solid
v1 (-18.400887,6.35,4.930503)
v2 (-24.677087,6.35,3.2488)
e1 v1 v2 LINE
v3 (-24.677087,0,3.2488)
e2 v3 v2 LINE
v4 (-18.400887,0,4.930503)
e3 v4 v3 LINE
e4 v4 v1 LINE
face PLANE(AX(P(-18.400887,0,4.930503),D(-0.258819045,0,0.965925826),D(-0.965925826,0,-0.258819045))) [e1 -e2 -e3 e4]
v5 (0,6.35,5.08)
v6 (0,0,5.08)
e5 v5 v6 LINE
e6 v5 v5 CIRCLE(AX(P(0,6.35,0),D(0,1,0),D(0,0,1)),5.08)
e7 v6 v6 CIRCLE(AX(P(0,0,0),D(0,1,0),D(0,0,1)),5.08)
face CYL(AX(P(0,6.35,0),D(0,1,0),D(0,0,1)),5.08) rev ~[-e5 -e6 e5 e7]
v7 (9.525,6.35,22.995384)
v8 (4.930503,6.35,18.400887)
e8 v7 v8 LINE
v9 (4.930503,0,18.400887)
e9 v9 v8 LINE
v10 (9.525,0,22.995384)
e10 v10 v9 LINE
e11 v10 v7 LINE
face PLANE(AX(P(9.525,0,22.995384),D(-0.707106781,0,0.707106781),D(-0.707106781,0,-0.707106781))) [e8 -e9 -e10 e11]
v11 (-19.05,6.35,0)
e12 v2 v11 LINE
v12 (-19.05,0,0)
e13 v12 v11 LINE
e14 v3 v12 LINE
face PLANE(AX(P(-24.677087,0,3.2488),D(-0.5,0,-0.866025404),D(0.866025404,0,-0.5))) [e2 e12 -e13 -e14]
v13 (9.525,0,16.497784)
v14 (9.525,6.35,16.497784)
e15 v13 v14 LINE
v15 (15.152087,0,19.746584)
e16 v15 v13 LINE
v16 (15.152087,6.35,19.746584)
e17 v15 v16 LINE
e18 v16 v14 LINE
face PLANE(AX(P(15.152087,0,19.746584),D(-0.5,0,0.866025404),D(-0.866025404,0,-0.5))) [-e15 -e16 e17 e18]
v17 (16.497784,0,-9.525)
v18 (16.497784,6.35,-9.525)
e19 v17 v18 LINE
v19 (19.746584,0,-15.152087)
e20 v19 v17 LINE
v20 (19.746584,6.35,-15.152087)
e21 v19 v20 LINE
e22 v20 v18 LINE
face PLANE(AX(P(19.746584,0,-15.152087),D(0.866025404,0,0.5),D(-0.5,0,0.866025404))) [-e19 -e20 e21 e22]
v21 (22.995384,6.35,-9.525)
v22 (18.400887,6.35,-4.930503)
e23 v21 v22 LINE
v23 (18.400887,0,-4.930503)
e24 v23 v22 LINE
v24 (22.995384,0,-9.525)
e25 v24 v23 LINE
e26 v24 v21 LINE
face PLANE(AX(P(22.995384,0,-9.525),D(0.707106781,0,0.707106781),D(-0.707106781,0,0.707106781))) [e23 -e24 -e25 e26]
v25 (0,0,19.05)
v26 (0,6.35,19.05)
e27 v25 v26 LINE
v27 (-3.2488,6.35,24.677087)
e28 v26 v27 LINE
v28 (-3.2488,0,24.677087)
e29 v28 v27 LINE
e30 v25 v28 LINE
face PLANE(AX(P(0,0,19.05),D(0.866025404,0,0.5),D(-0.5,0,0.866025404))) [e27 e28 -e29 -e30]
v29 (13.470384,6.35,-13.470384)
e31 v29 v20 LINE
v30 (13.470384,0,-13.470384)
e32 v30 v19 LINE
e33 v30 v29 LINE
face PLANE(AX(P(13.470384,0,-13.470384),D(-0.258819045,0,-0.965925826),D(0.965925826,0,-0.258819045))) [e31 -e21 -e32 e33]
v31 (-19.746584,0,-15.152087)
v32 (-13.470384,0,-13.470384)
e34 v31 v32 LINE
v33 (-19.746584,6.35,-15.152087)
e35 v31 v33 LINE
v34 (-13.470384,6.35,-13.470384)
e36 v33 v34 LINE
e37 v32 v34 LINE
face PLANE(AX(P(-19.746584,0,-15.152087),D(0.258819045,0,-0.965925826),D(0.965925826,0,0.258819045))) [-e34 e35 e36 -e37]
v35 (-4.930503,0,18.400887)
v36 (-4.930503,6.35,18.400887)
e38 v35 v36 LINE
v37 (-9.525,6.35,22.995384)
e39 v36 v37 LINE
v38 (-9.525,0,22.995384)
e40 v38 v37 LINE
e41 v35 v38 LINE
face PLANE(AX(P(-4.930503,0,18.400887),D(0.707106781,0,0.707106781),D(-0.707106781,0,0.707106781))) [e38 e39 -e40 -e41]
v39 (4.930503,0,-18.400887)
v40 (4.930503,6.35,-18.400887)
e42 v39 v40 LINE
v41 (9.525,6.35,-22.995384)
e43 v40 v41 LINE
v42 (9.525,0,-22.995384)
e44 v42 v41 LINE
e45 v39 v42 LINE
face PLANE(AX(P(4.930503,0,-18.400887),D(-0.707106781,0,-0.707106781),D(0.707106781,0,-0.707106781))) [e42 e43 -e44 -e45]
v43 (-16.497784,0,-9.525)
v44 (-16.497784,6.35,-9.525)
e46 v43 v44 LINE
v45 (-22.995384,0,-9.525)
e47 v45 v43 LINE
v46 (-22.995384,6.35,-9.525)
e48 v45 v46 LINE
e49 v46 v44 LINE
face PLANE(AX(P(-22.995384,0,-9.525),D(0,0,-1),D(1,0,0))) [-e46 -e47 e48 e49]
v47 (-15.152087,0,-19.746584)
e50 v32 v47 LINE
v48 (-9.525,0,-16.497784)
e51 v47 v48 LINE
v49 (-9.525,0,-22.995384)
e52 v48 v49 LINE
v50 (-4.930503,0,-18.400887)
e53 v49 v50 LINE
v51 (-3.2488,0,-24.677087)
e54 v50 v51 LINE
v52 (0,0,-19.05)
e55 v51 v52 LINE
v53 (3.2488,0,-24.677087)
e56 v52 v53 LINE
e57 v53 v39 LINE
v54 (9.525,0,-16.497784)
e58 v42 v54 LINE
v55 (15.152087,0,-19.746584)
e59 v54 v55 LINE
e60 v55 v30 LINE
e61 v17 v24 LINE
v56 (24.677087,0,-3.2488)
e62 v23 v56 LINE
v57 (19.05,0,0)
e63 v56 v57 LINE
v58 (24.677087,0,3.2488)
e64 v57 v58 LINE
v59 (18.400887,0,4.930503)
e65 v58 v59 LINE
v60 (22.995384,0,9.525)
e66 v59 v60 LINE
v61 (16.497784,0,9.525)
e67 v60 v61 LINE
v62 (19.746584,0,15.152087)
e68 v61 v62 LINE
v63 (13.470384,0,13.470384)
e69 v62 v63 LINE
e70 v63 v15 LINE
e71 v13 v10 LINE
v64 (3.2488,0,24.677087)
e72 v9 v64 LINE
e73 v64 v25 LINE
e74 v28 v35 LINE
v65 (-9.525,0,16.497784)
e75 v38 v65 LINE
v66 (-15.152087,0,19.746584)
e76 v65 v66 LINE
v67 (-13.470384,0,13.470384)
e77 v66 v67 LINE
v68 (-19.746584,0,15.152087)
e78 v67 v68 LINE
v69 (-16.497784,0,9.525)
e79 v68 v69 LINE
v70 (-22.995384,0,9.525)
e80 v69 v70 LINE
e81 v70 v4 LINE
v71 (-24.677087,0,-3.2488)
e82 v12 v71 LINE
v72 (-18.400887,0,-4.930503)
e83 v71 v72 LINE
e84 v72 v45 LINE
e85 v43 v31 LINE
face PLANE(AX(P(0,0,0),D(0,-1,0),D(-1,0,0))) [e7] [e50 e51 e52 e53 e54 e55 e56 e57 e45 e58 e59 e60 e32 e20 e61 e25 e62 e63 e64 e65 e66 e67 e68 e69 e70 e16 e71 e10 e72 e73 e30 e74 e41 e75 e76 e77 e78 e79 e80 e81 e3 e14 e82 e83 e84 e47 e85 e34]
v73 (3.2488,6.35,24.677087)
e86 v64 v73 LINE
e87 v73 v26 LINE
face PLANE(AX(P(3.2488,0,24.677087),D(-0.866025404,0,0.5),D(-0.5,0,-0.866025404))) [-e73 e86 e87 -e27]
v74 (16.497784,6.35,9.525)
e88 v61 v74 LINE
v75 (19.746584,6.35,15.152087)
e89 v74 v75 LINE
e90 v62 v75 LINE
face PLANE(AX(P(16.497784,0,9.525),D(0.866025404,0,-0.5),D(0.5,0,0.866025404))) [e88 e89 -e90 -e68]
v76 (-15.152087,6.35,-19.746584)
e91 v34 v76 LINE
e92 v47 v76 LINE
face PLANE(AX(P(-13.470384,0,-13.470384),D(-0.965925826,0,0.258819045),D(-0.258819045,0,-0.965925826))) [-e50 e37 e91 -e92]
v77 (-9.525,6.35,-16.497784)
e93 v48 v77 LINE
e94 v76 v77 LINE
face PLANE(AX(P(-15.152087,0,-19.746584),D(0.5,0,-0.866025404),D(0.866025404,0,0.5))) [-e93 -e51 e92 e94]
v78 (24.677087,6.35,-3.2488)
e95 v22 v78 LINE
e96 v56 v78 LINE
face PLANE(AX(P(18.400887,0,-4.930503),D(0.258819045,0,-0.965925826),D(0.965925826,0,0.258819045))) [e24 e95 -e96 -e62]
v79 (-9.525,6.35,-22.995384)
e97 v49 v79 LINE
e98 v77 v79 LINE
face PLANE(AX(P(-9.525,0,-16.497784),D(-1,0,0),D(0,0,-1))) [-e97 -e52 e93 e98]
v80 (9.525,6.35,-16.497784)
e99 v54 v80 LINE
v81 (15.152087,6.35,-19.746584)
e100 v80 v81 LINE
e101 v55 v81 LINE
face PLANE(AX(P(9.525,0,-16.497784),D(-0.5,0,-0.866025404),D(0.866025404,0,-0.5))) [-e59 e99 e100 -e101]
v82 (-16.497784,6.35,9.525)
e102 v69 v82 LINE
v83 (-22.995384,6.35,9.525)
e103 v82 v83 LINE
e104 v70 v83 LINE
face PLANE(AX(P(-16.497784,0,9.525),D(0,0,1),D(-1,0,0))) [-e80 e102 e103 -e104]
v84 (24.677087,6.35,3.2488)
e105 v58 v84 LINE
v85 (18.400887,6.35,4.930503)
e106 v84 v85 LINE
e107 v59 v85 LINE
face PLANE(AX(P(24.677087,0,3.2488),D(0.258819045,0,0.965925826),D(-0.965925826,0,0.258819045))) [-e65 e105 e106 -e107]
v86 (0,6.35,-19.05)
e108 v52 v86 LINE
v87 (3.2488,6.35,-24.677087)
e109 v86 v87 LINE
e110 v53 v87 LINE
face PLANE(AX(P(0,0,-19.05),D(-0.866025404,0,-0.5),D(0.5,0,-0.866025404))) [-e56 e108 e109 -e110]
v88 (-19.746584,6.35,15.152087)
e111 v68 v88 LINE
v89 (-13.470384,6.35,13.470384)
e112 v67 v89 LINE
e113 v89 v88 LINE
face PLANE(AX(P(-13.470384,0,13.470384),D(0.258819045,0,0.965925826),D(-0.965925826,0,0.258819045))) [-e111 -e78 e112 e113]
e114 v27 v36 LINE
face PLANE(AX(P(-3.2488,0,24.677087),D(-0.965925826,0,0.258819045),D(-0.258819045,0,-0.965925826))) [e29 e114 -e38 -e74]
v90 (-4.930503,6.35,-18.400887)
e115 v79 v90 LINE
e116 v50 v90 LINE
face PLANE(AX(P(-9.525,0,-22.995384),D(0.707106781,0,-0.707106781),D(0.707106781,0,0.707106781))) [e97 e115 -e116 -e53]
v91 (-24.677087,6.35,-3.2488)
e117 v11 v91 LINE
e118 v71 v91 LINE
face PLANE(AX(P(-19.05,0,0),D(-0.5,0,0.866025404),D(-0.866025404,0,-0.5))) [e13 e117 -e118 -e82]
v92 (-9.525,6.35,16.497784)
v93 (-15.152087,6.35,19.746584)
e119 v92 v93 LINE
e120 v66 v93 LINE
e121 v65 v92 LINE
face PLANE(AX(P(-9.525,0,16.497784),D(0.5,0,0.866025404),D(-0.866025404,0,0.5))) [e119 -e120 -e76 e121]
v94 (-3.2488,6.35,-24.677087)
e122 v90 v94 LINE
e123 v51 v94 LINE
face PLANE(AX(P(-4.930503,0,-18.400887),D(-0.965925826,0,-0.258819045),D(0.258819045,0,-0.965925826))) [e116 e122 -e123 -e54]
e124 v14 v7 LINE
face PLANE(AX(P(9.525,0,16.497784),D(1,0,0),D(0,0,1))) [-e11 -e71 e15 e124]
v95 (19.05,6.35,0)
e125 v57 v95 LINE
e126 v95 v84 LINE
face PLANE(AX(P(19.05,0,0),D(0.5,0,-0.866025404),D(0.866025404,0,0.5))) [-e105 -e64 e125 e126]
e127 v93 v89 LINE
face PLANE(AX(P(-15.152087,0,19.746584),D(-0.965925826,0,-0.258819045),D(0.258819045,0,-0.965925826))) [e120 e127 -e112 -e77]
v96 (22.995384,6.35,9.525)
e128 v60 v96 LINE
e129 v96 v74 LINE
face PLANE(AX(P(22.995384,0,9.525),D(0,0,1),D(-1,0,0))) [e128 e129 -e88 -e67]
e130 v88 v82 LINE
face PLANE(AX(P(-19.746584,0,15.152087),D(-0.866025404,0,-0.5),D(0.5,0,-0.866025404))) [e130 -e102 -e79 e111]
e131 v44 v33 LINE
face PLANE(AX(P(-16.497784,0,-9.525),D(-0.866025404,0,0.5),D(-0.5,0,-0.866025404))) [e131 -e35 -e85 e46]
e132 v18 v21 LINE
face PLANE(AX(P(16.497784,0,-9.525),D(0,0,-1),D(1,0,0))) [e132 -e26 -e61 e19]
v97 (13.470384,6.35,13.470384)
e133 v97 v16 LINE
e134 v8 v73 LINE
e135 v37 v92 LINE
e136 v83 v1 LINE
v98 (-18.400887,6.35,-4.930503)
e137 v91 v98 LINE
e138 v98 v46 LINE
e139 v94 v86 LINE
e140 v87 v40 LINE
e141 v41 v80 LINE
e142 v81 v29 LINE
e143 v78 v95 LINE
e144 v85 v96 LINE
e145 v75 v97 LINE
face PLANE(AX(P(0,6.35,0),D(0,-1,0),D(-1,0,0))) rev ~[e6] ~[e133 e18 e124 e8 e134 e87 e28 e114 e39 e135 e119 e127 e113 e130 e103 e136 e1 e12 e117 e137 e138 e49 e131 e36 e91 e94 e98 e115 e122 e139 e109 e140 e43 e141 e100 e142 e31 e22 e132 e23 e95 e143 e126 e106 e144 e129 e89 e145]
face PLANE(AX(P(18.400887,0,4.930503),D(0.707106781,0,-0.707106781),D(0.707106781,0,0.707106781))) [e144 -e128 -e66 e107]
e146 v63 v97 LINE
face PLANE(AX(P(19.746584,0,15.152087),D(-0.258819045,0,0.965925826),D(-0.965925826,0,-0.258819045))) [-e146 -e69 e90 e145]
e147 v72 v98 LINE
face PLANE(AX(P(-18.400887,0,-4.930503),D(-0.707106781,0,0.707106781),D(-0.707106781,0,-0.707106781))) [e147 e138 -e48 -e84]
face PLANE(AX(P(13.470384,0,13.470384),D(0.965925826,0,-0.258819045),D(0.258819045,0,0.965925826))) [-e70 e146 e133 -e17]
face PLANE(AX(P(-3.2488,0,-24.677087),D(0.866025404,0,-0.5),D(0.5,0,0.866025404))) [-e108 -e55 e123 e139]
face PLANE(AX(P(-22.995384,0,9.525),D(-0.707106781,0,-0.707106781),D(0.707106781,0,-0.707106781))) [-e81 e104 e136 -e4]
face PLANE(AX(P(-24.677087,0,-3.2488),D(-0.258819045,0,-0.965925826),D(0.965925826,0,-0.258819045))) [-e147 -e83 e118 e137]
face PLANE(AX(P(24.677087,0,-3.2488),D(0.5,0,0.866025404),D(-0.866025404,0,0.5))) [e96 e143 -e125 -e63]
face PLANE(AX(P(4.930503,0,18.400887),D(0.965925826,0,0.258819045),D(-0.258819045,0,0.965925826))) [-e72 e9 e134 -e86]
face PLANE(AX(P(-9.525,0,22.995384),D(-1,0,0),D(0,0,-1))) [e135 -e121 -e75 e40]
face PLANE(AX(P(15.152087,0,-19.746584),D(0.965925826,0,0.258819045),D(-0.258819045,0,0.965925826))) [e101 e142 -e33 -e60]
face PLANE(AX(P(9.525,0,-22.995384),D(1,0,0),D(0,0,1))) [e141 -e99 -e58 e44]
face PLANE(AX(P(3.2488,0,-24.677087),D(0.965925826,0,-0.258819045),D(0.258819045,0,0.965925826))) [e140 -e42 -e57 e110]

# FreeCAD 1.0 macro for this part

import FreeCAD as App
import Part
import Sketcher
Q = App.Units.Quantity

doc = App.newDocument("Part")
body = doc.addObject("PartDesign::Body", "Body")

sketch1 = body.newObject("Sketcher::SketchObject", "Sketch")
sketch1.AttachmentSupport = (doc.getObject("XZ_Plane"), [""])
sketch1.MapMode = "FlatFace"
sketch1.addGeometry([
    Part.LineSegment(App.Vector(-9.525, -22.995384, 0), App.Vector(-9.525, -16.497784, 0)),
    Part.LineSegment(App.Vector(-9.525, -16.497784, 0), App.Vector(-15.152087, -19.746584, 0)),
    Part.LineSegment(App.Vector(-15.152087, -19.746584, 0), App.Vector(-13.470384, -13.470384, 0)),
    Part.LineSegment(App.Vector(-13.470384, -13.470384, 0), App.Vector(-19.746584, -15.152087, 0)),
    Part.LineSegment(App.Vector(-19.746584, -15.152087, 0), App.Vector(-16.497784, -9.525, 0)),
    Part.LineSegment(App.Vector(-16.497784, -9.525, 0), App.Vector(-22.995384, -9.525, 0)),
    Part.LineSegment(App.Vector(-22.995384, -9.525, 0), App.Vector(-18.400887, -4.930503, 0)),
    Part.LineSegment(App.Vector(-18.400887, -4.930503, 0), App.Vector(-24.677087, -3.2488, 0)),
    Part.LineSegment(App.Vector(-24.677087, -3.2488, 0), App.Vector(-19.05, 0, 0)),
    Part.LineSegment(App.Vector(-19.05, 0, 0), App.Vector(-24.677087, 3.2488, 0)),
    Part.LineSegment(App.Vector(-24.677087, 3.2488, 0), App.Vector(-18.400887, 4.930503, 0)),
    Part.LineSegment(App.Vector(-18.400887, 4.930503, 0), App.Vector(-22.995384, 9.525, 0)),
    Part.LineSegment(App.Vector(-22.995384, 9.525, 0), App.Vector(-16.497784, 9.525, 0)),
    Part.LineSegment(App.Vector(-16.497784, 9.525, 0), App.Vector(-19.746584, 15.152087, 0)),
    Part.LineSegment(App.Vector(-19.746584, 15.152087, 0), App.Vector(-13.470384, 13.470384, 0)),
    Part.LineSegment(App.Vector(-13.470384, 13.470384, 0), App.Vector(-15.152087, 19.746584, 0)),
    Part.LineSegment(App.Vector(-15.152087, 19.746584, 0), App.Vector(-9.525, 16.497784, 0)),
    Part.LineSegment(App.Vector(-9.525, 16.497784, 0), App.Vector(-9.525, 22.995384, 0)),
    Part.LineSegment(App.Vector(-9.525, 22.995384, 0), App.Vector(-4.930503, 18.400887, 0)),
    Part.LineSegment(App.Vector(-4.930503, 18.400887, 0), App.Vector(-3.2488, 24.677087, 0)),
    Part.LineSegment(App.Vector(-3.2488, 24.677087, 0), App.Vector(0, 19.05, 0)),
    Part.LineSegment(App.Vector(0, 19.05, 0), App.Vector(3.2488, 24.677087, 0)),
    Part.LineSegment(App.Vector(3.2488, 24.677087, 0), App.Vector(4.930503, 18.400887, 0)),
    Part.LineSegment(App.Vector(4.930503, 18.400887, 0), App.Vector(9.525, 22.995384, 0)),
    Part.LineSegment(App.Vector(9.525, 22.995384, 0), App.Vector(9.525, 16.497784, 0)),
    Part.LineSegment(App.Vector(9.525, 16.497784, 0), App.Vector(15.152087, 19.746584, 0)),
    Part.LineSegment(App.Vector(15.152087, 19.746584, 0), App.Vector(13.470384, 13.470384, 0)),
    Part.LineSegment(App.Vector(13.470384, 13.470384, 0), App.Vector(19.746584, 15.152087, 0)),
    Part.LineSegment(App.Vector(19.746584, 15.152087, 0), App.Vector(16.497784, 9.525, 0)),
    Part.LineSegment(App.Vector(16.497784, 9.525, 0), App.Vector(22.995384, 9.525, 0)),
    Part.LineSegment(App.Vector(22.995384, 9.525, 0), App.Vector(18.400887, 4.930503, 0)),
    Part.LineSegment(App.Vector(18.400887, 4.930503, 0), App.Vector(24.677087, 3.2488, 0)),
    Part.LineSegment(App.Vector(24.677087, 3.2488, 0), App.Vector(19.05, 0, 0)),
    Part.LineSegment(App.Vector(19.05, 0, 0), App.Vector(24.677087, -3.2488, 0)),
    Part.LineSegment(App.Vector(24.677087, -3.2488, 0), App.Vector(18.400887, -4.930503, 0)),
    Part.LineSegment(App.Vector(18.400887, -4.930503, 0), App.Vector(22.995384, -9.525, 0)),
    Part.LineSegment(App.Vector(22.995384, -9.525, 0), App.Vector(16.497784, -9.525, 0)),
    Part.LineSegment(App.Vector(16.497784, -9.525, 0), App.Vector(19.746584, -15.152087, 0)),
    Part.LineSegment(App.Vector(19.746584, -15.152087, 0), App.Vector(13.470384, -13.470384, 0)),
    Part.LineSegment(App.Vector(13.470384, -13.470384, 0), App.Vector(15.152087, -19.746584, 0)),
    Part.LineSegment(App.Vector(15.152087, -19.746584, 0), App.Vector(9.525, -16.497784, 0)),
    Part.LineSegment(App.Vector(9.525, -16.497784, 0), App.Vector(9.525, -22.995384, 0)),
    Part.LineSegment(App.Vector(9.525, -22.995384, 0), App.Vector(4.930503, -18.400887, 0)),
    Part.LineSegment(App.Vector(4.930503, -18.400887, 0), App.Vector(3.2488, -24.677087, 0)),
    Part.LineSegment(App.Vector(3.2488, -24.677087, 0), App.Vector(0, -19.05, 0)),
    Part.LineSegment(App.Vector(0, -19.05, 0), App.Vector(-3.2488, -24.677087, 0)),
    Part.LineSegment(App.Vector(-3.2488, -24.677087, 0), App.Vector(-4.930503, -18.400887, 0)),
    Part.LineSegment(App.Vector(-4.930503, -18.400887, 0), App.Vector(-9.525, -22.995384, 0)),
], False)
sketch1.addConstraint([
    Sketcher.Constraint("Coincident", 0, 2, 1, 1),
    Sketcher.Constraint("Coincident", 1, 2, 2, 1),
    Sketcher.Constraint("Coincident", 2, 2, 3, 1),
    Sketcher.Constraint("Coincident", 3, 2, 4, 1),
    Sketcher.Constraint("Coincident", 4, 2, 5, 1),
    Sketcher.Constraint("Coincident", 5, 2, 6, 1),
    Sketcher.Constraint("Coincident", 6, 2, 7, 1),
    Sketcher.Constraint("Coincident", 7, 2, 8, 1),
    Sketcher.Constraint("Coincident", 8, 2, 9, 1),
    Sketcher.Constraint("Coincident", 9, 2, 10, 1),
    Sketcher.Constraint("Coincident", 10, 2, 11, 1),
    Sketcher.Constraint("Coincident", 11, 2, 12, 1),
    Sketcher.Constraint("Coincident", 12, 2, 13, 1),
    Sketcher.Constraint("Coincident", 13, 2, 14, 1),
    Sketcher.Constraint("Coincident", 14, 2, 15, 1),
    Sketcher.Constraint("Coincident", 15, 2, 16, 1),
    Sketcher.Constraint("Coincident", 16, 2, 17, 1),
    Sketcher.Constraint("Coincident", 17, 2, 18, 1),
    Sketcher.Constraint("Coincident", 18, 2, 19, 1),
    Sketcher.Constraint("Coincident", 19, 2, 20, 1),
    Sketcher.Constraint("Coincident", 20, 2, 21, 1),
    Sketcher.Constraint("Coincident", 21, 2, 22, 1),
    Sketcher.Constraint("Coincident", 22, 2, 23, 1),
    Sketcher.Constraint("Coincident", 23, 2, 24, 1),
    Sketcher.Constraint("Coincident", 24, 2, 25, 1),
    Sketcher.Constraint("Coincident", 25, 2, 26, 1),
    Sketcher.Constraint("Coincident", 26, 2, 27, 1),
    Sketcher.Constraint("Coincident", 27, 2, 28, 1),
    Sketcher.Constraint("Coincident", 28, 2, 29, 1),
    Sketcher.Constraint("Coincident", 29, 2, 30, 1),
    Sketcher.Constraint("Coincident", 30, 2, 31, 1),
    Sketcher.Constraint("Coincident", 31, 2, 32, 1),
    Sketcher.Constraint("Coincident", 32, 2, 33, 1),
    Sketcher.Constraint("Coincident", 33, 2, 34, 1),
    Sketcher.Constraint("Coincident", 34, 2, 35, 1),
    Sketcher.Constraint("Coincident", 35, 2, 36, 1),
    Sketcher.Constraint("Coincident", 36, 2, 37, 1),
    Sketcher.Constraint("Coincident", 37, 2, 38, 1),
    Sketcher.Constraint("Coincident", 38, 2, 39, 1),
    Sketcher.Constraint("Coincident", 39, 2, 40, 1),
    Sketcher.Constraint("Coincident", 40, 2, 41, 1),
    Sketcher.Constraint("Coincident", 41, 2, 42, 1),
    Sketcher.Constraint("Coincident", 42, 2, 43, 1),
    Sketcher.Constraint("Coincident", 43, 2, 44, 1),
    Sketcher.Constraint("Coincident", 44, 2, 45, 1),
    Sketcher.Constraint("Coincident", 45, 2, 46, 1),
    Sketcher.Constraint("Coincident", 46, 2, 47, 1),
    Sketcher.Constraint("Coincident", 47, 2, 0, 1),
    Sketcher.Constraint("Vertical", 0),
    Sketcher.Constraint("Horizontal", 5),
    Sketcher.Constraint("Horizontal", 12),
    Sketcher.Constraint("Vertical", 17),
    Sketcher.Constraint("Vertical", 24),
    Sketcher.Constraint("Horizontal", 29),
    Sketcher.Constraint("Horizontal", 36),
    Sketcher.Constraint("Vertical", 41),
    Sketcher.Constraint("Symmetric", 0, 2, 24, 2, -1, 1),
    Sketcher.Constraint("Symmetric", 1, 2, 25, 2, -1, 1),
    Sketcher.Constraint("Symmetric", 2, 2, 26, 2, -1, 1),
    Sketcher.Constraint("Symmetric", 3, 2, 27, 2, -1, 1),
    Sketcher.Constraint("Symmetric", 4, 2, 28, 2, -1, 1),
    Sketcher.Constraint("Symmetric", 6, 2, 30, 2, -1, 1),
    Sketcher.Constraint("Symmetric", 7, 2, 31, 2, -1, 1),
    Sketcher.Constraint("Symmetric", 8, 2, 32, 2, -1, 1),
    Sketcher.Constraint("Symmetric", 9, 2, 33, 2, -1, 1),
    Sketcher.Constraint("Symmetric", 10, 2, 34, 2, -1, 1),
    Sketcher.Constraint("Symmetric", 11, 2, 35, 2, -1, 1),
    Sketcher.Constraint("Symmetric", 13, 2, 37, 2, -1, 1),
    Sketcher.Constraint("Symmetric", 14, 2, 38, 2, -1, 1),
    Sketcher.Constraint("Symmetric", 15, 2, 39, 2, -1, 1),
    Sketcher.Constraint("Symmetric", 16, 2, 40, 2, -1, 1),
    Sketcher.Constraint("Symmetric", 18, 2, 42, 2, -1, 1),
    Sketcher.Constraint("Symmetric", 19, 2, 43, 2, -1, 1),
    Sketcher.Constraint("Symmetric", 20, 2, 44, 2, -1, 1),
    Sketcher.Constraint("Symmetric", 21, 2, 45, 2, -1, 1),
    Sketcher.Constraint("Symmetric", 22, 2, 46, 2, -1, 1),
    Sketcher.Constraint("Symmetric", 19, 2, 21, 2, -2),
    Sketcher.Constraint("Symmetric", 18, 2, 22, 2, -2),
    Sketcher.Constraint("Symmetric", 17, 2, 23, 2, -2),
    Sketcher.Constraint("Symmetric", 15, 2, 25, 2, -2),
    Sketcher.Constraint("Symmetric", 14, 2, 26, 2, -2),
    Sketcher.Constraint("Symmetric", 13, 2, 27, 2, -2),
    Sketcher.Constraint("Symmetric", 12, 2, 28, 2, -2),
    Sketcher.Constraint("Symmetric", 10, 2, 30, 2, -2),
    Sketcher.Constraint("Symmetric", 9, 2, 31, 2, -2),
    Sketcher.Constraint("PointOnObject", 8, 2, -1),
    Sketcher.Constraint("PointOnObject", 20, 2, -2),
    Sketcher.Constraint("Perpendicular", 2, 7),
    Sketcher.Constraint("Parallel", 1, 8),
    Sketcher.Constraint("Perpendicular", 4, 9),
    Sketcher.Constraint("Parallel", 3, 10),
    Sketcher.Constraint("Perpendicular", 6, 11),
    Sketcher.Constraint("Parallel", 9, 16),
    Sketcher.Constraint("Parallel", 11, 18),
    Sketcher.Constraint("Perpendicular", 14, 19),
    Sketcher.Constraint("Parallel", 13, 20),
    Sketcher.Constraint("Perpendicular", 18, 23),
    Sketcher.Constraint("Parallel", 23, 30),
    Sketcher.Constraint("Perpendicular", 32, 37),
    Sketcher.Constraint("Parallel", 35, 42),
    Sketcher.Constraint("Perpendicular", 42, 47),
    Sketcher.Constraint("Equal", 36, 0),
    Sketcher.Constraint("Equal", 1, 2),
    Sketcher.Constraint("Equal", 2, 3),
    Sketcher.Constraint("Equal", 3, 4),
    Sketcher.Constraint("Equal", 4, 6),
    Sketcher.Constraint("Equal", 6, 7),
    Sketcher.Constraint("Equal", 7, 8),
    Sketcher.Constraint("Equal", 16, 18),
    Sketcher.Constraint("Equal", 18, 19),
    Sketcher.Constraint("Equal", 19, 20),
    Sketcher.Constraint("Angle", 1, Q("-150 deg")),
    Sketcher.Constraint("Angle", 2, Q("75 deg")),
    Sketcher.Constraint("DistanceX", 8, 2, -1, 1, Q("0.75 in")),
    Sketcher.Constraint("DistanceX", 0, 2, -1, 1, Q("0.375 in")),
])
pad1 = body.newObject("PartDesign::Pad", "Pad")
pad1.Profile = sketch1
pad1.Length = Q("0.25 in")
pad1.Reversed = True

sketch2 = body.newObject("Sketcher::SketchObject", "Sketch001")
sketch2.AttachmentSupport = (doc.getObject("XZ_Plane"), [""])
sketch2.MapMode = "FlatFace"
sketch2.AttachmentOffset = App.Placement(App.Vector(0, 0, -0.25 * 25.4), App.Rotation())
sketch2.addGeometry(Part.Circle(App.Vector(0, 0, 0), App.Vector(0, 0, 1), 5.08), False)
sketch2.addConstraint([
    Sketcher.Constraint("Coincident", 0, 3, -1, 1),
    Sketcher.Constraint("Diameter", 0, Q("0.4 in")),
])
pocket1 = body.newObject("PartDesign::Pocket", "Pocket")
pocket1.Profile = sketch2
pocket1.Length = Q("0.25 in")
pocket1.Reversed = True

doc.recompute()
